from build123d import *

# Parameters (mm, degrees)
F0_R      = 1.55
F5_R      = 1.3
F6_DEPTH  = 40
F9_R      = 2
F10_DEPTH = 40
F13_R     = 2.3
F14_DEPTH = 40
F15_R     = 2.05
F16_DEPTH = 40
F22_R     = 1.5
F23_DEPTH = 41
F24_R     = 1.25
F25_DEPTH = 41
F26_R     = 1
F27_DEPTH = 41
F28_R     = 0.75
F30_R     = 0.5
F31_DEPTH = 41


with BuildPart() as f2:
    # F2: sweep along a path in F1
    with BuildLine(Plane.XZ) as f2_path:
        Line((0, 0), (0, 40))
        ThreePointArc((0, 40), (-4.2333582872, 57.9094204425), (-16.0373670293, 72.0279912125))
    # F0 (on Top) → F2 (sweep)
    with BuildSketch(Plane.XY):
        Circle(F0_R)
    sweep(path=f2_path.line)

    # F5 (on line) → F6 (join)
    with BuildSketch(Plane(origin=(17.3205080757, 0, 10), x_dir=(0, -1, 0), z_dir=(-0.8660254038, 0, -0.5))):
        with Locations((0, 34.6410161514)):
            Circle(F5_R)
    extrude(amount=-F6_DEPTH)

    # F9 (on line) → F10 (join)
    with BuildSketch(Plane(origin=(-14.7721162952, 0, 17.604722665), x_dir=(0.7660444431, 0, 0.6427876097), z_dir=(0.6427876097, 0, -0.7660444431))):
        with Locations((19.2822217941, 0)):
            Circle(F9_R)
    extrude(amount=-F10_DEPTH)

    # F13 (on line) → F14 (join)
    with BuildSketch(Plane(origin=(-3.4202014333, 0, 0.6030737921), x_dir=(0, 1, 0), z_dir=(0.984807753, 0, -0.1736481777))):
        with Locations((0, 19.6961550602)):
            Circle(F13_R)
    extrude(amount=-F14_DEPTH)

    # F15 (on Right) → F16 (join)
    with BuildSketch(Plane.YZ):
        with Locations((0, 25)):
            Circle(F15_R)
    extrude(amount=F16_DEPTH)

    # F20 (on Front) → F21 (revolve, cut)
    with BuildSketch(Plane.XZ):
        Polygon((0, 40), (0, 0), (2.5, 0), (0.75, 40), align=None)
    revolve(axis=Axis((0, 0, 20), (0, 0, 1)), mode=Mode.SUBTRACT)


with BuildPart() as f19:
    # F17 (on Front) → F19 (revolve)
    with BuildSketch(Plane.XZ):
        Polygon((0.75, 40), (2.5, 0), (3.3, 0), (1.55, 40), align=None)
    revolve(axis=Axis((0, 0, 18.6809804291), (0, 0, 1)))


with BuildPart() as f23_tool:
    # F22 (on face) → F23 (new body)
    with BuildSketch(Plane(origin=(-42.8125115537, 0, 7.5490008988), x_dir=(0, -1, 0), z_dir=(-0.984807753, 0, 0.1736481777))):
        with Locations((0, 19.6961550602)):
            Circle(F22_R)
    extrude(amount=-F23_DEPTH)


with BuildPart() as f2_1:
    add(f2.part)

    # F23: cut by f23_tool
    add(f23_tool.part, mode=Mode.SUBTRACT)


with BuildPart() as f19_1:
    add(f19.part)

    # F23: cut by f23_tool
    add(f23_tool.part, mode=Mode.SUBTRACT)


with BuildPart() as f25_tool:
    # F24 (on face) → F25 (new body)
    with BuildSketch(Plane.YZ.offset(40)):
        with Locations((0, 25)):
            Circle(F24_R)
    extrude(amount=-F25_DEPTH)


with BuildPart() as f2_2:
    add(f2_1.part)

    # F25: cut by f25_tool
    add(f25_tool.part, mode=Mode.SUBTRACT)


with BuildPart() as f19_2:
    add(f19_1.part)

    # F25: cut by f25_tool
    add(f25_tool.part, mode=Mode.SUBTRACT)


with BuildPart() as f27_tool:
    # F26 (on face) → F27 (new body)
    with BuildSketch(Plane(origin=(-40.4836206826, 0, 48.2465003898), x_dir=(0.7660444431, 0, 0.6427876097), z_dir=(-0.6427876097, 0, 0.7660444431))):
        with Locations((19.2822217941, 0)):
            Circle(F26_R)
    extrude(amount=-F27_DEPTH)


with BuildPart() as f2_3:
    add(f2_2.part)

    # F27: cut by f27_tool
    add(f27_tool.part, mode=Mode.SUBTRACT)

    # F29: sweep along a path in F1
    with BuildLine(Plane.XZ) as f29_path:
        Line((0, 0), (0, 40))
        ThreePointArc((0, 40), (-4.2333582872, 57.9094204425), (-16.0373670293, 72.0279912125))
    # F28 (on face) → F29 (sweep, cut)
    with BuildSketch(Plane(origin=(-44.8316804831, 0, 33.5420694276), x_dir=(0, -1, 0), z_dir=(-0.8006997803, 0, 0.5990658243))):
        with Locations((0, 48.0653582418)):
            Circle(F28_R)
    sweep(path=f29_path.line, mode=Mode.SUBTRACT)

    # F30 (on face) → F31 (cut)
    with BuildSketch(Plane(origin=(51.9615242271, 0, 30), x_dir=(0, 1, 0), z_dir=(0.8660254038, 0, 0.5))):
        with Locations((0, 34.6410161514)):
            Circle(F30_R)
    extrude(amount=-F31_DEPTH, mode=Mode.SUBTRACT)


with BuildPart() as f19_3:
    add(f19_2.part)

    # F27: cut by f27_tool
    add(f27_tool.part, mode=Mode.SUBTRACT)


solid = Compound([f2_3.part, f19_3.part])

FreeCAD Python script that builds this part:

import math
import FreeCAD as App
import Part
import Sketcher
Q = App.Units.Quantity

doc = App.newDocument("Part")
params = doc.addObject("Spreadsheet::Sheet", "Params")
for row, (alias, value) in enumerate([
    ("sketch1_diameter", "3.1 mm"),
    ("sketch2_radius", "40 mm"),
    ("sketch2_height", "40 mm"),
    ("sketch3_diameter", "2.6 mm"),
    ("pad1_length", "40 mm"),
    ("sketch4_diameter", "4 mm"),
    ("pad2_length", "40 mm"),
    ("sketch5_diameter", "4.6 mm"),
    ("pad3_length", "40 mm"),
    ("sketch6_diameter", "4.1 mm"),
    ("pad4_length", "40 mm"),
    ("sketch7_height", "40 mm"),
    ("sketch7_width", "2.5 mm"),
    ("sketch7_width2", "0.75 mm"),
    ("groove_angle", "360 deg"),
    ("sketch8_width", "0.8 mm"),
    ("revolution_angle", "360 deg"),
    ("sketch9_diameter", "3 mm"),
    ("pad5_length", "41 mm"),
    ("sketch10_diameter", "2.5 mm"),
    ("pad6_length", "41 mm"),
    ("sketch11_diameter", "2 mm"),
    ("pad7_length", "41 mm"),
    ("sketch12_diameter", "1.5 mm"),
    ("sketch13_radius", "40 mm"),
    ("sketch13_height", "40 mm"),
    ("sketch14_diameter", "1 mm"),
    ("pocket1_length", "41 mm"),
], start=1):
    params.set(f"A{row}", alias)
    params.set(f"B{row}", "=" + value)
    params.setAlias(f"B{row}", alias)

body = doc.addObject("PartDesign::Body", "Body")

# Sketch on XY plane
sketch1 = doc.addObject("Sketcher::SketchObject", "Sketch")
body.addObject(sketch1)
sketch1.AttachmentSupport = (doc.XY_Plane, [""])
sketch1.MapMode = "FlatFace"
sketch1.addGeometry(Part.Circle(App.Vector(0, 0, 0), App.Vector(0, 0, 1), 1.6), False)
sketch1.addConstraint(Sketcher.Constraint("Coincident", 0, 3, -1, 1))
sketch1.addConstraint(Sketcher.Constraint("Diameter", 0, Q("3.1 mm")))
sketch1.setExpression("Constraints[1]", "Params.sketch1_diameter")

# Sketch on XZ plane
sketch2 = doc.addObject("Sketcher::SketchObject", "Sketch001")
body.addObject(sketch2)
sketch2.AttachmentSupport = (doc.XZ_Plane, [""])
sketch2.MapMode = "FlatFace"
sketch2.addGeometry(Part.LineSegment(App.Vector(0, 0, 0), App.Vector(0, 40, 0)), False)
sketch2.addGeometry(Part.ArcOfCircle(Part.Circle(App.Vector(-40, 40, 0), App.Vector(0, 0, 1), 40), math.radians(0), math.radians(53)), False)
sketch2.addConstraint(Sketcher.Constraint("Tangent", 0, 2, 1, 1))
sketch2.addConstraint(Sketcher.Constraint("Vertical", 0))
sketch2.addConstraint(Sketcher.Constraint("Coincident", 0, 1, -1, 1))
sketch2.addConstraint(Sketcher.Constraint("Radius", 1, Q("40 mm")))
sketch2.addConstraint(Sketcher.Constraint("DistanceY", 0, 1, 0, 2, Q("40 mm")))
sketch2.addConstraint(Sketcher.Constraint("DistanceY", -1, 1, 1, 2, Q("72.027991 mm")))
sketch2.setExpression("Constraints[3]", "Params.sketch2_radius")
sketch2.setExpression("Constraints[4]", "Params.sketch2_height")
doc.recompute()

additivepipe = doc.addObject("PartDesign::AdditivePipe", "AdditivePipe")
body.addObject(additivepipe)
additivepipe.Profile = sketch1
additivepipe.Spine = (sketch2, ["Edge1", "Edge2"])

# Sketch on an angled plane
sketch3 = doc.addObject("Sketcher::SketchObject", "Sketch002")
body.addObject(sketch3)
sketch3.Placement = App.Placement(App.Vector(17.320508, 0, 10), App.Rotation(App.Vector(0, -1, 0), App.Vector(-0.5, 0, 0.866025404), App.Vector(-0.866025404, 0, -0.5), "ZXY"))
sketch3.addGeometry(Part.Circle(App.Vector(0, 34.6, 0), App.Vector(0, 0, 1), 1.3), False)
sketch3.addConstraint(Sketcher.Constraint("PointOnObject", 0, 3, -2))
sketch3.addConstraint(Sketcher.Constraint("Diameter", 0, Q("2.6 mm")))
sketch3.addConstraint(Sketcher.Constraint("DistanceY", -1, 1, 0, 3, Q("34.641016 mm")))
sketch3.setExpression("Constraints[1]", "Params.sketch3_diameter")
pad1 = doc.addObject("PartDesign::Pad", "Pad")
body.addObject(pad1)
pad1.Profile = sketch3
pad1.setExpression("Length", "Params.pad1_length")
pad1.Reversed = True

# Sketch on an angled plane
sketch4 = doc.addObject("Sketcher::SketchObject", "Sketch003")
body.addObject(sketch4)
sketch4.Placement = App.Placement(App.Vector(-14.772116, 0, 17.604723), App.Rotation(App.Vector(0.766044443, 0, 0.64278761), App.Vector(0, -1, 0), App.Vector(0.64278761, 0, -0.766044443), "ZXY"))
sketch4.addGeometry(Part.Circle(App.Vector(19.3, 0, 0), App.Vector(0, 0, 1), 2), False)
sketch4.addConstraint(Sketcher.Constraint("PointOnObject", 0, 3, -1))
sketch4.addConstraint(Sketcher.Constraint("Diameter", 0, Q("4 mm")))
sketch4.addConstraint(Sketcher.Constraint("DistanceX", -1, 1, 0, 3, Q("19.282222 mm")))
sketch4.setExpression("Constraints[1]", "Params.sketch4_diameter")
pad2 = doc.addObject("PartDesign::Pad", "Pad001")
body.addObject(pad2)
pad2.Profile = sketch4
pad2.setExpression("Length", "Params.pad2_length")
pad2.Reversed = True

# Sketch on an angled plane
sketch5 = doc.addObject("Sketcher::SketchObject", "Sketch004")
body.addObject(sketch5)
sketch5.Placement = App.Placement(App.Vector(-3.420201, 0, 0.603074), App.Rotation(App.Vector(0, 1, 0), App.Vector(0.173648178, 0, 0.984807753), App.Vector(0.984807753, 0, -0.173648178), "ZXY"))
sketch5.addGeometry(Part.Circle(App.Vector(0, 19.7, 0), App.Vector(0, 0, 1), 2.3), False)
sketch5.addConstraint(Sketcher.Constraint("PointOnObject", 0, 3, -2))
sketch5.addConstraint(Sketcher.Constraint("Diameter", 0, Q("4.6 mm")))
sketch5.addConstraint(Sketcher.Constraint("DistanceY", -1, 1, 0, 3, Q("19.696155 mm")))
sketch5.setExpression("Constraints[1]", "Params.sketch5_diameter")
pad3 = doc.addObject("PartDesign::Pad", "Pad002")
body.addObject(pad3)
pad3.Profile = sketch5
pad3.setExpression("Length", "Params.pad3_length")
pad3.Reversed = True

# Sketch on YZ plane
sketch6 = doc.addObject("Sketcher::SketchObject", "Sketch005")
body.addObject(sketch6)
sketch6.AttachmentSupport = (doc.YZ_Plane, [""])
sketch6.MapMode = "FlatFace"
sketch6.addGeometry(Part.Circle(App.Vector(0, 25, 0), App.Vector(0, 0, 1), 2), False)
sketch6.addConstraint(Sketcher.Constraint("PointOnObject", 0, 3, -2))
sketch6.addConstraint(Sketcher.Constraint("Diameter", 0, Q("4.1 mm")))
sketch6.addConstraint(Sketcher.Constraint("DistanceY", -1, 1, 0, 3, Q("25 mm")))
sketch6.setExpression("Constraints[1]", "Params.sketch6_diameter")
pad4 = doc.addObject("PartDesign::Pad", "Pad003")
body.addObject(pad4)
pad4.Profile = sketch6
pad4.setExpression("Length", "Params.pad4_length")

# Sketch on XZ plane
sketch7 = doc.addObject("Sketcher::SketchObject", "Sketch006")
body.addObject(sketch7)
sketch7.AttachmentSupport = (doc.XZ_Plane, [""])
sketch7.MapMode = "FlatFace"
sketch7.addGeometry(Part.LineSegment(App.Vector(0, 40, 0), App.Vector(0, 0, 0)), False)
sketch7.addGeometry(Part.LineSegment(App.Vector(0, 0, 0), App.Vector(2.5, 0, 0)), False)
sketch7.addGeometry(Part.LineSegment(App.Vector(2.5, 0, 0), App.Vector(0.8, 40, 0)), False)
sketch7.addGeometry(Part.LineSegment(App.Vector(0.8, 40, 0), App.Vector(0, 40, 0)), False)
sketch7.addConstraint(Sketcher.Constraint("Coincident", 0, 2, 1, 1))
sketch7.addConstraint(Sketcher.Constraint("Coincident", 1, 2, 2, 1))
sketch7.addConstraint(Sketcher.Constraint("Coincident", 2, 2, 3, 1))
sketch7.addConstraint(Sketcher.Constraint("Coincident", 3, 2, 0, 1))
sketch7.addConstraint(Sketcher.Constraint("Vertical", 0))
sketch7.addConstraint(Sketcher.Constraint("Horizontal", 1))
sketch7.addConstraint(Sketcher.Constraint("Horizontal", 3))
sketch7.addConstraint(Sketcher.Constraint("Coincident", 0, 2, -1, 1))
sketch7.addConstraint(Sketcher.Constraint("DistanceY", 0, 2, 0, 1, Q("40 mm")))
sketch7.addConstraint(Sketcher.Constraint("DistanceX", 1, 1, 1, 2, Q("2.5 mm")))
sketch7.addConstraint(Sketcher.Constraint("DistanceX", 3, 2, 3, 1, Q("0.75 mm")))
sketch7.setExpression("Constraints[8]", "Params.sketch7_height")
sketch7.setExpression("Constraints[9]", "Params.sketch7_width")
sketch7.setExpression("Constraints[10]", "Params.sketch7_width2")
groove = doc.addObject("PartDesign::Groove", "Groove")
body.addObject(groove)
groove.Profile = sketch7
groove.ReferenceAxis = (sketch7, ["V_Axis"])
groove.setExpression("Angle", "Params.groove_angle")
body2 = doc.addObject("PartDesign::Body", "Body001")

# Sketch on XZ plane
sketch8 = doc.addObject("Sketcher::SketchObject", "Sketch007")
body2.addObject(sketch8)
sketch8.AttachmentSupport = (doc.getObject("XZ_Plane001"), [""])
sketch8.MapMode = "FlatFace"
sketch8.addGeometry(Part.LineSegment(App.Vector(0.8, 40, 0), App.Vector(2.5, 0, 0)), False)
sketch8.addGeometry(Part.LineSegment(App.Vector(2.5, 0, 0), App.Vector(3.3, 0, 0)), False)
sketch8.addGeometry(Part.LineSegment(App.Vector(3.3, 0, 0), App.Vector(1.6, 40, 0)), False)
sketch8.addGeometry(Part.LineSegment(App.Vector(1.6, 40, 0), App.Vector(0.8, 40, 0)), False)
sketch8.addConstraint(Sketcher.Constraint("Coincident", 0, 2, 1, 1))
sketch8.addConstraint(Sketcher.Constraint("Coincident", 1, 2, 2, 1))
sketch8.addConstraint(Sketcher.Constraint("Coincident", 2, 2, 3, 1))
sketch8.addConstraint(Sketcher.Constraint("Coincident", 3, 2, 0, 1))
sketch8.addConstraint(Sketcher.Constraint("Horizontal", 1))
sketch8.addConstraint(Sketcher.Constraint("Horizontal", 3))
sketch8.addConstraint(Sketcher.Constraint("PointOnObject", 0, 2, -1))
sketch8.addConstraint(Sketcher.Constraint("Parallel", 0, 2))
sketch8.addConstraint(Sketcher.Constraint("DistanceX", 1, 1, 1, 2, Q("0.8 mm")))
sketch8.addConstraint(Sketcher.Constraint("DistanceY", -1, 1, 2, 2, Q("40 mm")))
sketch8.addConstraint(Sketcher.Constraint("DistanceX", -1, 1, 0, 2, Q("2.5 mm")))
sketch8.addConstraint(Sketcher.Constraint("DistanceX", -1, 1, 2, 2, Q("1.55 mm")))
sketch8.setExpression("Constraints[8]", "Params.sketch8_width")
revolution = doc.addObject("PartDesign::Revolution", "Revolution")
body2.addObject(revolution)
revolution.Profile = sketch8
revolution.ReferenceAxis = (sketch8, ["V_Axis"])
revolution.setExpression("Angle", "Params.revolution_angle")
body3 = doc.addObject("PartDesign::Body", "Body002")

# Sketch on an angled plane
sketch9 = doc.addObject("Sketcher::SketchObject", "Sketch008")
body3.addObject(sketch9)
sketch9.Placement = App.Placement(App.Vector(-42.812512, 0, 7.549001), App.Rotation(App.Vector(0, -1, 0), App.Vector(0.173648178, 0, 0.984807753), App.Vector(-0.984807753, 0, 0.173648178), "ZXY"))
sketch9.addGeometry(Part.Circle(App.Vector(0, 19.7, 0), App.Vector(0, 0, 1), 1.5), False)
sketch9.addConstraint(Sketcher.Constraint("PointOnObject", 0, 3, -2))
sketch9.addConstraint(Sketcher.Constraint("Diameter", 0, Q("3 mm")))
sketch9.addConstraint(Sketcher.Constraint("DistanceY", -1, 1, 0, 3, Q("19.696155 mm")))
sketch9.setExpression("Constraints[1]", "Params.sketch9_diameter")
pad5 = doc.addObject("PartDesign::Pad", "Pad004")
body3.addObject(pad5)
pad5.Profile = sketch9
pad5.setExpression("Length", "Params.pad5_length")
pad5.Reversed = True
doc.recompute()

body4 = doc.addObject("PartDesign::Body", "Body003")
body4.BaseFeature = body3
boolean = doc.addObject("PartDesign::Boolean", "Boolean")
body.addObject(boolean)
boolean.Type = "Cut"
boolean.addObjects([body4])
doc.recompute()

boolean2 = doc.addObject("PartDesign::Boolean", "Boolean001")
body2.addObject(boolean2)
boolean2.Type = "Cut"
boolean2.addObjects([body3])
body5 = doc.addObject("PartDesign::Body", "Body004")

# Sketch on YZ plane
sketch10 = doc.addObject("Sketcher::SketchObject", "Sketch009")
body5.addObject(sketch10)
sketch10.AttachmentSupport = (doc.getObject("YZ_Plane004"), [""])
sketch10.MapMode = "FlatFace"
sketch10.AttachmentOffset = App.Placement(App.Vector(0, 0, 40), App.Rotation())
sketch10.addGeometry(Part.Circle(App.Vector(0, 25, 0), App.Vector(0, 0, 1), 1.2), False)
sketch10.addConstraint(Sketcher.Constraint("PointOnObject", 0, 3, -2))
sketch10.addConstraint(Sketcher.Constraint("Diameter", 0, Q("2.5 mm")))
sketch10.addConstraint(Sketcher.Constraint("DistanceY", -1, 1, 0, 3, Q("25 mm")))
sketch10.setExpression("Constraints[1]", "Params.sketch10_diameter")
pad6 = doc.addObject("PartDesign::Pad", "Pad005")
body5.addObject(pad6)
pad6.Profile = sketch10
pad6.setExpression("Length", "Params.pad6_length")
pad6.Reversed = True
doc.recompute()

body6 = doc.addObject("PartDesign::Body", "Body005")
body6.BaseFeature = body5
boolean3 = doc.addObject("PartDesign::Boolean", "Boolean002")
body.addObject(boolean3)
boolean3.Type = "Cut"
boolean3.addObjects([body6])
doc.recompute()

boolean4 = doc.addObject("PartDesign::Boolean", "Boolean003")
body2.addObject(boolean4)
boolean4.Type = "Cut"
boolean4.addObjects([body5])
body7 = doc.addObject("PartDesign::Body", "Body006")

# Sketch on an angled plane
sketch11 = doc.addObject("Sketcher::SketchObject", "Sketch010")
body7.addObject(sketch11)
sketch11.Placement = App.Placement(App.Vector(-40.483621, 0, 48.2465), App.Rotation(App.Vector(0.766044443, 0, 0.64278761), App.Vector(0, 1, 0), App.Vector(-0.64278761, 0, 0.766044443), "ZXY"))
sketch11.addGeometry(Part.Circle(App.Vector(19.3, 0, 0), App.Vector(0, 0, 1), 1), False)
sketch11.addConstraint(Sketcher.Constraint("PointOnObject", 0, 3, -1))
sketch11.addConstraint(Sketcher.Constraint("Diameter", 0, Q("2 mm")))
sketch11.addConstraint(Sketcher.Constraint("DistanceX", -1, 1, 0, 3, Q("19.282222 mm")))
sketch11.setExpression("Constraints[1]", "Params.sketch11_diameter")
pad7 = doc.addObject("PartDesign::Pad", "Pad006")
body7.addObject(pad7)
pad7.Profile = sketch11
pad7.setExpression("Length", "Params.pad7_length")
pad7.Reversed = True
doc.recompute()

body8 = doc.addObject("PartDesign::Body", "Body007")
body8.BaseFeature = body7
boolean5 = doc.addObject("PartDesign::Boolean", "Boolean004")
body.addObject(boolean5)
boolean5.Type = "Cut"
boolean5.addObjects([body8])
doc.recompute()

# Sketch on an angled plane
sketch12 = doc.addObject("Sketcher::SketchObject", "Sketch011")
body.addObject(sketch12)
sketch12.Placement = App.Placement(App.Vector(-44.83168, 0, 33.542069), App.Rotation(App.Vector(0, -1, 0), App.Vector(0.599065824, 0, 0.80069978), App.Vector(-0.80069978, 0, 0.599065824), "ZXY"))
sketch12.addGeometry(Part.Circle(App.Vector(0, 48.1, 0), App.Vector(0, 0, 1), 0.8), False)
sketch12.addConstraint(Sketcher.Constraint("PointOnObject", 0, 3, -2))
sketch12.addConstraint(Sketcher.Constraint("Diameter", 0, Q("1.5 mm")))
sketch12.addConstraint(Sketcher.Constraint("DistanceY", -1, 1, 0, 3, Q("48.065358 mm")))
sketch12.setExpression("Constraints[1]", "Params.sketch12_diameter")

# Sketch on XZ plane
sketch13 = doc.addObject("Sketcher::SketchObject", "Sketch012")
body.addObject(sketch13)
sketch13.AttachmentSupport = (doc.XZ_Plane, [""])
sketch13.MapMode = "FlatFace"
sketch13.addGeometry(Part.LineSegment(App.Vector(0, 0, 0), App.Vector(0, 40, 0)), False)
sketch13.addGeometry(Part.ArcOfCircle(Part.Circle(App.Vector(-40, 40, 0), App.Vector(0, 0, 1), 40), math.radians(0), math.radians(53)), False)
sketch13.addConstraint(Sketcher.Constraint("Tangent", 0, 2, 1, 1))
sketch13.addConstraint(Sketcher.Constraint("Vertical", 0))
sketch13.addConstraint(Sketcher.Constraint("Coincident", 0, 1, -1, 1))
sketch13.addConstraint(Sketcher.Constraint("Radius", 1, Q("40 mm")))
sketch13.addConstraint(Sketcher.Constraint("DistanceY", 0, 1, 0, 2, Q("40 mm")))
sketch13.addConstraint(Sketcher.Constraint("DistanceY", -1, 1, 1, 2, Q("72.027991 mm")))
sketch13.setExpression("Constraints[3]", "Params.sketch13_radius")
sketch13.setExpression("Constraints[4]", "Params.sketch13_height")
doc.recompute()

subtractivepipe = doc.addObject("PartDesign::SubtractivePipe", "SubtractivePipe")
body.addObject(subtractivepipe)
subtractivepipe.Profile = sketch12
subtractivepipe.Spine = (sketch13, ["Edge1", "Edge2"])

# Sketch on an angled plane
sketch14 = doc.addObject("Sketcher::SketchObject", "Sketch013")
body.addObject(sketch14)
sketch14.Placement = App.Placement(App.Vector(51.961524, 0, 30), App.Rotation(App.Vector(0, 1, 0), App.Vector(-0.5, 0, 0.866025404), App.Vector(0.866025404, 0, 0.5), "ZXY"))
sketch14.addGeometry(Part.Circle(App.Vector(0, 34.6, 0), App.Vector(0, 0, 1), 0.5), False)
sketch14.addConstraint(Sketcher.Constraint("PointOnObject", 0, 3, -2))
sketch14.addConstraint(Sketcher.Constraint("Diameter", 0, Q("1 mm")))
sketch14.addConstraint(Sketcher.Constraint("DistanceY", -1, 1, 0, 3, Q("34.641016 mm")))
sketch14.setExpression("Constraints[1]", "Params.sketch14_diameter")
pocket1 = doc.addObject("PartDesign::Pocket", "Pocket")
body.addObject(pocket1)
pocket1.Profile = sketch14
pocket1.setExpression("Length", "Params.pocket1_length")
doc.recompute()

boolean6 = doc.addObject("PartDesign::Boolean", "Boolean005")
body2.addObject(boolean6)
boolean6.Type = "Cut"
boolean6.addObjects([body7])

doc.recompute()
